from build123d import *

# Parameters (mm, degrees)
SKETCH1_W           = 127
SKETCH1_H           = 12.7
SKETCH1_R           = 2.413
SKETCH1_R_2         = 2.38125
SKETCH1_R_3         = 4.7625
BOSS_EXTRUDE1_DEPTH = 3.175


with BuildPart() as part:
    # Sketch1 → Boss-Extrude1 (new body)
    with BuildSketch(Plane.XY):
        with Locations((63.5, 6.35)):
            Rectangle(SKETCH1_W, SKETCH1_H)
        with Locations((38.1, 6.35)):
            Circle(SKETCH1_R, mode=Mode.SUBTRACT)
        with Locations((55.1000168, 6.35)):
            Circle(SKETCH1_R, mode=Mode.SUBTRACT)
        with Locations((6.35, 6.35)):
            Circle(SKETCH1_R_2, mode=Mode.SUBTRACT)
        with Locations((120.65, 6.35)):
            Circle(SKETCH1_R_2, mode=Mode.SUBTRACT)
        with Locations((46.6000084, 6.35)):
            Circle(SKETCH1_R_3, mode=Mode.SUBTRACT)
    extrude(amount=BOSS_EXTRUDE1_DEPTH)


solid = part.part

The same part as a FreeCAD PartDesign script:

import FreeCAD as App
import Part
import Sketcher
Q = App.Units.Quantity

doc = App.newDocument("Part")
body = doc.addObject("PartDesign::Body", "Body")

# Sketch on XY plane
sketch1 = body.newObject("Sketcher::SketchObject", "Sketch")
sketch1.AttachmentSupport = (doc.getObject("XY_Plane"), [""])
sketch1.MapMode = "FlatFace"
sketch1.addGeometry(Part.LineSegment(App.Vector(0, 12.7, 0), App.Vector(0, 0, 0)), False)
sketch1.addGeometry(Part.LineSegment(App.Vector(0, 0, 0), App.Vector(127, 0, 0)), False)
sketch1.addGeometry(Part.LineSegment(App.Vector(127, 0, 0), App.Vector(127, 12.7, 0)), False)
sketch1.addGeometry(Part.LineSegment(App.Vector(127, 12.7, 0), App.Vector(0, 12.7, 0)), False)
sketch1.addGeometry(Part.Circle(App.Vector(6.35, 6.35, 0), App.Vector(0, 0, 1), 2.38125), False)
sketch1.addGeometry(Part.Circle(App.Vector(38.1, 6.35, 0), App.Vector(0, 0, 1), 2.413), False)
sketch1.addGeometry(Part.Circle(App.Vector(46.600008, 6.35, 0), App.Vector(0, 0, 1), 4.7625), False)
sketch1.addGeometry(Part.Circle(App.Vector(55.100017, 6.35, 0), App.Vector(0, 0, 1), 2.413), False)
sketch1.addGeometry(Part.Circle(App.Vector(120.65, 6.35, 0), App.Vector(0, 0, 1), 2.38125), False)
sketch1.addConstraint(Sketcher.Constraint("Coincident", 0, 2, 1, 1))
sketch1.addConstraint(Sketcher.Constraint("Coincident", 1, 2, 2, 1))
sketch1.addConstraint(Sketcher.Constraint("Coincident", 2, 2, 3, 1))
sketch1.addConstraint(Sketcher.Constraint("Coincident", 3, 2, 0, 1))
sketch1.addConstraint(Sketcher.Constraint("Vertical", 0))
sketch1.addConstraint(Sketcher.Constraint("Horizontal", 1))
sketch1.addConstraint(Sketcher.Constraint("Vertical", 2))
sketch1.addConstraint(Sketcher.Constraint("Horizontal", 3))
sketch1.addConstraint(Sketcher.Constraint("Coincident", 0, 2, -1, 1))
sketch1.addConstraint(Sketcher.Constraint("Equal", 5, 7))
sketch1.addConstraint(Sketcher.Constraint("Equal", 4, 8))
sketch1.addConstraint(Sketcher.Constraint("Horizontal", 4, 3, 5, 3))
sketch1.addConstraint(Sketcher.Constraint("Horizontal", 5, 3, 6, 3))
sketch1.addConstraint(Sketcher.Constraint("Horizontal", 6, 3, 7, 3))
sketch1.addConstraint(Sketcher.Constraint("Horizontal", 7, 3, 8, 3))
sketch1.addConstraint(Sketcher.Constraint("Diameter", 5, Q("0.19 in")))
sketch1.addConstraint(Sketcher.Constraint("DistanceX", 1, 1, 1, 2, Q("5 in")))
sketch1.addConstraint(Sketcher.Constraint("Diameter", 4, Q("0.1875 in")))
sketch1.addConstraint(Sketcher.Constraint("Diameter", 6, Q("0.375 in")))
sketch1.addConstraint(Sketcher.Constraint("DistanceY", 0, 2, 0, 1, Q("0.5 in")))
sketch1.addConstraint(Sketcher.Constraint("DistanceX", -1, 1, 5, 3, Q("1.5 in")))
sketch1.addConstraint(Sketcher.Constraint("DistanceX", 4, 3, 8, 3, Q("4.5 in")))
sketch1.addConstraint(Sketcher.Constraint("DistanceX", -1, 1, 4, 3, Q("0.25 in")))
sketch1.addConstraint(Sketcher.Constraint("DistanceY", -1, 1, 4, 3, Q("0.25 in")))
sketch1.addConstraint(Sketcher.Constraint("DistanceX", -1, 1, 6, 3, 46.600008))
sketch1.addConstraint(Sketcher.Constraint("DistanceX", 6, 3, 7, 3, 8.500008))
pad1 = body.newObject("PartDesign::Pad", "Pad")
pad1.Profile = sketch1
pad1.Length = Q("0.125 in")

doc.recompute()
